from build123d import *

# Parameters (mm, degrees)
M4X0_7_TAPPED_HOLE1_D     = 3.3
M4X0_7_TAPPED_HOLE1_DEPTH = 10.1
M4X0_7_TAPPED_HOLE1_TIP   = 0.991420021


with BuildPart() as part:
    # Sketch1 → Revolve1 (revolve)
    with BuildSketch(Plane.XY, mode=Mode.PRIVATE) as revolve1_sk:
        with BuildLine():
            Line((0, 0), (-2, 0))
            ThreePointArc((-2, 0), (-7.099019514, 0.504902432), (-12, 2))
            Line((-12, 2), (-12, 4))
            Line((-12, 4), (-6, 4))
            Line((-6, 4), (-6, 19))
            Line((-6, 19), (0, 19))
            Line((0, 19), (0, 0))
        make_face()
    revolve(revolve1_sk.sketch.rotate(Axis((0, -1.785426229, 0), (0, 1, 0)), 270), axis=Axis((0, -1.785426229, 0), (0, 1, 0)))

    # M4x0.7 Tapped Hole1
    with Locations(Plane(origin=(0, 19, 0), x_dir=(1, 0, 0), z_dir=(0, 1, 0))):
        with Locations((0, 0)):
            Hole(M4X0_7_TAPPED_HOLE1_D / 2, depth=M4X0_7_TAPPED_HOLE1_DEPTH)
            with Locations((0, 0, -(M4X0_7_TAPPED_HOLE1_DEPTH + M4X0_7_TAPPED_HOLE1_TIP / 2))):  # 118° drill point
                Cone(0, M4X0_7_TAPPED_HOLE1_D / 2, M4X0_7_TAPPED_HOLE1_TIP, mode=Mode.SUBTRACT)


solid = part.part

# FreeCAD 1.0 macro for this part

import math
import FreeCAD as App
import Part
import Sketcher
from FreeCAD import Vector
Q = App.Units.Quantity

doc = App.newDocument("Part")
body = doc.addObject("PartDesign::Body", "Body")

# Sketch on XY plane
sketch1 = body.newObject("Sketcher::SketchObject", "Sketch")
sketch1.AttachmentSupport = (doc.getObject("XY_Plane"), [""])
sketch1.MapMode = "FlatFace"
sketch1.addGeometry([
    Part.LineSegment(Vector(-2, 0, 0), Vector(0, 0, 0)),  # 0
    Part.LineSegment(Vector(0, 0, 0), Vector(0, 19, 0)),  # 1
    Part.LineSegment(Vector(0, 19, 0), Vector(-6, 19, 0)),  # 2
    Part.LineSegment(Vector(-6, 19, 0), Vector(-6, 4, 0)),  # 3
    Part.LineSegment(Vector(-6, 4, 0), Vector(-12, 4, 0)),  # 4
    Part.LineSegment(Vector(-12, 4, 0), Vector(-12, 2, 0)),  # 5
    Part.ArcOfCircle(Part.Circle(Vector(-2, 26, 0), Vector(0, 0, 1), 26), math.radians(-112.619865), math.radians(-90)),  # 6
], False)
sketch1.addConstraint([
    Sketcher.Constraint("Coincident", 0, 2, 1, 1),
    Sketcher.Constraint("Coincident", 1, 2, 2, 1),
    Sketcher.Constraint("Coincident", 2, 2, 3, 1),
    Sketcher.Constraint("Coincident", 3, 2, 4, 1),
    Sketcher.Constraint("Coincident", 4, 2, 5, 1),
    Sketcher.Constraint("Coincident", 5, 2, 6, 1),
    Sketcher.Constraint("Tangent", 6, 2, 0, 1),
    Sketcher.Constraint("Horizontal", 0),
    Sketcher.Constraint("Vertical", 1),
    Sketcher.Constraint("Horizontal", 2),
    Sketcher.Constraint("Vertical", 3),
    Sketcher.Constraint("Horizontal", 4),
    Sketcher.Constraint("Vertical", 5),
    Sketcher.Constraint("Coincident", 0, 2, -1, 1),
    Sketcher.Constraint("Equal", 2, 4),
    Sketcher.Constraint("Equal", 0, 5),
    Sketcher.Constraint("Radius", 6, Q("26 mm")),
    Sketcher.Constraint("DistanceX", 0, 1, 0, 2, Q("2 mm")),
    Sketcher.Constraint("DistanceX", 2, 2, 2, 1, Q("6 mm")),
    Sketcher.Constraint("DistanceY", 1, 1, 1, 2, Q("19 mm")),
])
revolution = body.newObject("PartDesign::Revolution", "Revolution")
revolution.Profile = sketch1
revolution.ReferenceAxis = (sketch1, ["V_Axis"])
revolution.Angle = 360

# Sketch on XZ plane
sketch2 = body.newObject("Sketcher::SketchObject", "Sketch001")
sketch2.AttachmentSupport = (doc.getObject("XZ_Plane"), [""])
sketch2.MapMode = "FlatFace"
sketch2.AttachmentOffset = App.Placement(Vector(0, 0, -19), App.Rotation())
sketch2.addGeometry(Part.Circle(Vector(0, 0, 0), Vector(0, 0, 1), 1.65), False)
sketch2.addConstraint([
    Sketcher.Constraint("Coincident", 0, 3, -1, 1),
    Sketcher.Constraint("Diameter", 0, Q("3.3 mm")),
])
doc.recompute()
hole = body.newObject("PartDesign::Hole", "Hole")
hole.Profile = sketch2
hole.ThreadType = "None"
hole.Diameter = 3.3
hole.DepthType = "Dimension"
hole.Depth = 10.1
hole.DrillPoint = "Angled"
hole.DrillPointAngle = 118
hole.Reversed = True

doc.recompute()
